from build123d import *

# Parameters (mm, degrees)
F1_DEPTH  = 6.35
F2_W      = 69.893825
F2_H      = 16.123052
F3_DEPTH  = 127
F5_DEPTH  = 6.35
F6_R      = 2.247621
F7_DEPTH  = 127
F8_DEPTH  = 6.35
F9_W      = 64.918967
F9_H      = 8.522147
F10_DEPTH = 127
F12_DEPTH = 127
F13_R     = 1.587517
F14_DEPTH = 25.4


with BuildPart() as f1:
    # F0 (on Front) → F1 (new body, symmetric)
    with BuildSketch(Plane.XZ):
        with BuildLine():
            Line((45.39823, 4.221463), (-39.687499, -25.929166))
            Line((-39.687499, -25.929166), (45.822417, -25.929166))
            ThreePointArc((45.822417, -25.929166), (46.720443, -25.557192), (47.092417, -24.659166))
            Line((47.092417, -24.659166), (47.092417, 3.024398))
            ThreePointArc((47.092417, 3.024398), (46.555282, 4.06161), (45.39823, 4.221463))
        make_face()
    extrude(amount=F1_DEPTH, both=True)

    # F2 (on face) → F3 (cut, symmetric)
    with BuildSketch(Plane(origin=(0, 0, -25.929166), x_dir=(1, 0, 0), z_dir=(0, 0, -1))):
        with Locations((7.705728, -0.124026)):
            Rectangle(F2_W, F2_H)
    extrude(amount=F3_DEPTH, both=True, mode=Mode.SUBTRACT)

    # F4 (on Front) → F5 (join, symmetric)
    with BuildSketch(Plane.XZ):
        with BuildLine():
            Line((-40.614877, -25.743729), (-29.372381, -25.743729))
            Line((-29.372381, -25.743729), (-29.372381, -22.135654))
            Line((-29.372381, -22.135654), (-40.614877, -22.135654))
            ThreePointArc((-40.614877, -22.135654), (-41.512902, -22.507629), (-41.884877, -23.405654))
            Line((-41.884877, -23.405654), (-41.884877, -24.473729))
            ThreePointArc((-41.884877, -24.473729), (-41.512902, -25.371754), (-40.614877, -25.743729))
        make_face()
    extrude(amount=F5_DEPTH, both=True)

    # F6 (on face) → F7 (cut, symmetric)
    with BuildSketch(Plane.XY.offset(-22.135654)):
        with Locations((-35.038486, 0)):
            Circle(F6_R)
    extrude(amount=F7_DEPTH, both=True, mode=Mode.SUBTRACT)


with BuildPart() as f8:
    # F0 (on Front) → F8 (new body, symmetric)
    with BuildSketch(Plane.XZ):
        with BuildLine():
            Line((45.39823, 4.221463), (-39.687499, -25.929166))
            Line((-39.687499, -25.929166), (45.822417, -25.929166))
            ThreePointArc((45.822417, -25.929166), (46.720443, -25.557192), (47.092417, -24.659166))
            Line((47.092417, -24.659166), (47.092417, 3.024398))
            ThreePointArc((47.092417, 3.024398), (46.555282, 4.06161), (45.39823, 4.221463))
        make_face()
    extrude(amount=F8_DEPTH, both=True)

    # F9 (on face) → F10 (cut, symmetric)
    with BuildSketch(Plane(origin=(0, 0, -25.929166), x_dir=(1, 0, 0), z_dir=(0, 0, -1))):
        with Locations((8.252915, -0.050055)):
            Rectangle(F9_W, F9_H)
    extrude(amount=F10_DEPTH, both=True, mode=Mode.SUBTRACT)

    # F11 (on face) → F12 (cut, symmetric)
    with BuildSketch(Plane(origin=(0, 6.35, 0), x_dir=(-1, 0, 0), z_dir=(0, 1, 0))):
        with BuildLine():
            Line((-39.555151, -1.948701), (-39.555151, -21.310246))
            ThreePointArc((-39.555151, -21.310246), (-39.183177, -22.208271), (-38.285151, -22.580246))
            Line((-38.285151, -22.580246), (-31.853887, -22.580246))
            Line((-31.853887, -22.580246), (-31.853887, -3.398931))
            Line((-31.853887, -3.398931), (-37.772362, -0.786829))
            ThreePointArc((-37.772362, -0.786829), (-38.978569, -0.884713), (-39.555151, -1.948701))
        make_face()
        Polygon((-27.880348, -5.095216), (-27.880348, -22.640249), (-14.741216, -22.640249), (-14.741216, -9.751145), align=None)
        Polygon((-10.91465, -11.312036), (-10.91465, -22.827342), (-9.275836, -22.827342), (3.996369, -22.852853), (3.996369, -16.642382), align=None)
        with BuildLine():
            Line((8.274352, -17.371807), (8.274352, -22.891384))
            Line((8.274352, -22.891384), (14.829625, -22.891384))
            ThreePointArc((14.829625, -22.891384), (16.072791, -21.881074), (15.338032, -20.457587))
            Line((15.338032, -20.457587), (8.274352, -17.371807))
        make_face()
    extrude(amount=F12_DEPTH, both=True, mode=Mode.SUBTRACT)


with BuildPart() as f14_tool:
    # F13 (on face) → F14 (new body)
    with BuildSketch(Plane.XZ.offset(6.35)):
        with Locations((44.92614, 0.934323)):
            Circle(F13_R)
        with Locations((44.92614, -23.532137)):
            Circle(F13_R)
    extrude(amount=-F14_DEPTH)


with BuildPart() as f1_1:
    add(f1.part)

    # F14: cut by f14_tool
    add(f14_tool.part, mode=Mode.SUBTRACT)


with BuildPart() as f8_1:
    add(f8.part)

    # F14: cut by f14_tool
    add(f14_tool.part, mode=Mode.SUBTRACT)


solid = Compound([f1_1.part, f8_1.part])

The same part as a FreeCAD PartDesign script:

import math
import FreeCAD as App
import Part
import Sketcher
from FreeCAD import Vector
Q = App.Units.Quantity


def add_polygon(sketch, points):
    """Adds a closed chain of lines whose ends are joined by coincident constraints."""
    first, n = sketch.GeometryCount, len(points)
    for a, b in zip(points, points[1:] + points[:1]):
        sketch.addGeometry(Part.LineSegment(App.Vector(*a, 0), App.Vector(*b, 0)), False)
    for i in range(n):
        sketch.addConstraint(Sketcher.Constraint("Coincident", first + i, 2, first + (i + 1) % n, 1))

doc = App.newDocument("Part")
body = doc.addObject("PartDesign::Body", "Body")
body.AllowCompound = True

# Sketch on XZ plane
sketch1 = body.newObject("Sketcher::SketchObject", "Sketch")
sketch1.AttachmentSupport = (doc.getObject("XZ_Plane"), [""])
sketch1.MapMode = "FlatFace"
sketch1.addGeometry([
    Part.LineSegment(Vector(45.4, 4.2, 0), Vector(-39.7, -25.9, 0)),  # 0
    Part.LineSegment(Vector(-39.7, -25.9, 0), Vector(45.8, -25.9, 0)),  # 1
    Part.ArcOfCircle(Part.Circle(Vector(45.8, -24.7, 0), Vector(0, 0, 1), 1.3), math.radians(-90), math.radians(0)),  # 2
    Part.LineSegment(Vector(47.1, -24.7, 0), Vector(47.1, 3, 0)),  # 3
    Part.ArcOfCircle(Part.Circle(Vector(45.8, 3, 0), Vector(0, 0, 1), 1.3), math.radians(0), math.radians(110)),  # 4
], False)
sketch1.addConstraint([
    Sketcher.Constraint("Coincident", 0, 2, 1, 1),
    Sketcher.Constraint("Tangent", 1, 2, 2, 1),
    Sketcher.Constraint("Tangent", 2, 2, 3, 1),
    Sketcher.Constraint("Tangent", 3, 2, 4, 1),
    Sketcher.Constraint("Tangent", 4, 2, 0, 1),
    Sketcher.Constraint("Horizontal", 1),
    Sketcher.Constraint("Vertical", 3),
    Sketcher.Constraint("Equal", 2, 4),
    Sketcher.Constraint("Radius", 2, Q("0.0499999 in")),
    Sketcher.Constraint("DistanceX", 0, 2, -1, 1, Q("1.5625 in")),
    Sketcher.Constraint("DistanceY", -1, 1, 4, 3, 3.024398),
    Sketcher.Constraint("DistanceX", 1, 1, 1, 2, 85.509916),
    Sketcher.Constraint("DistanceY", 3, 1, 3, 2, 27.683564),
])
pad1 = body.newObject("PartDesign::Pad", "Pad")
pad1.Profile = sketch1
pad1.Length = Q("0.5 in")
pad1.Midplane = True

# Sketch on XY plane
sketch2 = body.newObject("Sketcher::SketchObject", "Sketch001")
sketch2.AttachmentSupport = (doc.getObject("XY_Plane"), [""])
sketch2.MapMode = "FlatFace"
sketch2.AttachmentOffset = App.Placement(Vector(0, 0, -25.929166), App.Rotation())
add_polygon(sketch2, [(-27, -8), (-27, 8), (43, 8), (43, -8)])  # lines 0-3
sketch2.addConstraint([
    Sketcher.Constraint("Vertical", 0),
    Sketcher.Constraint("Horizontal", 1),
    Sketcher.Constraint("Vertical", 2),
    Sketcher.Constraint("Horizontal", 3),
    Sketcher.Constraint("DistanceY", 2, 2, -1, 1, Q("0.3125 in")),
    Sketcher.Constraint("DistanceX", 1, 1, 1, 2, 69.893825),
    Sketcher.Constraint("DistanceY", 0, 1, 0, 2, 16.123052),
    Sketcher.Constraint("DistanceX", -1, 1, 1, 2, 42.65264),
])
pocket1 = body.newObject("PartDesign::Pocket", "Pocket")
pocket1.Profile = sketch2
pocket1.Length = Q("10 in")
pocket1.Midplane = True

# Sketch on XZ plane
sketch3 = body.newObject("Sketcher::SketchObject", "Sketch002")
sketch3.AttachmentSupport = (doc.getObject("XZ_Plane"), [""])
sketch3.MapMode = "FlatFace"
sketch3.addGeometry([
    Part.LineSegment(Vector(-40.6, -25.7, 0), Vector(-29.4, -25.7, 0)),  # 0
    Part.LineSegment(Vector(-29.4, -25.7, 0), Vector(-29.4, -22.1, 0)),  # 1
    Part.LineSegment(Vector(-29.4, -22.1, 0), Vector(-40.6, -22.1, 0)),  # 2
    Part.ArcOfCircle(Part.Circle(Vector(-40.6, -23.4, 0), Vector(0, 0, 1), 1.3), math.radians(90), math.radians(180)),  # 3
    Part.LineSegment(Vector(-41.9, -23.4, 0), Vector(-41.9, -24.5, 0)),  # 4
    Part.ArcOfCircle(Part.Circle(Vector(-40.6, -24.5, 0), Vector(0, 0, 1), 1.3), math.radians(-180), math.radians(-90)),  # 5
], False)
sketch3.addConstraint([
    Sketcher.Constraint("Coincident", 0, 2, 1, 1),
    Sketcher.Constraint("Coincident", 1, 2, 2, 1),
    Sketcher.Constraint("Tangent", 2, 2, 3, 1),
    Sketcher.Constraint("Tangent", 3, 2, 4, 1),
    Sketcher.Constraint("Tangent", 4, 2, 5, 1),
    Sketcher.Constraint("Tangent", 5, 2, 0, 1),
    Sketcher.Constraint("Horizontal", 0),
    Sketcher.Constraint("Vertical", 1),
    Sketcher.Constraint("Horizontal", 2),
    Sketcher.Constraint("Vertical", 4),
    Sketcher.Constraint("Equal", 3, 5),
    Sketcher.Constraint("Radius", 3, Q("0.0500001 in")),
    Sketcher.Constraint("DistanceX", 0, 1, 0, 2, 11.242496),
    Sketcher.Constraint("DistanceY", 1, 1, 1, 2, 3.608075),
    Sketcher.Constraint("DistanceX", 0, 2, -1, 1, 29.372381),
    Sketcher.Constraint("DistanceY", 0, 2, -1, 1, 25.743729),
])
pad2 = body.newObject("PartDesign::Pad", "Pad001")
pad2.Profile = sketch3
pad2.Length = Q("0.5 in")
pad2.Midplane = True

# Sketch on XY plane
sketch4 = body.newObject("Sketcher::SketchObject", "Sketch003")
sketch4.AttachmentSupport = (doc.getObject("XY_Plane"), [""])
sketch4.MapMode = "FlatFace"
sketch4.AttachmentOffset = App.Placement(Vector(0, 0, -22.135654), App.Rotation())
sketch4.addGeometry(Part.Circle(Vector(-35, 0, 0), Vector(0, 0, 1), 2.2), False)
sketch4.addConstraint([
    Sketcher.Constraint("PointOnObject", 0, 3, -1),
    Sketcher.Constraint("Diameter", 0, 4.495242),
    Sketcher.Constraint("DistanceX", 0, 3, -1, 1, 35.038486),
])
pocket2 = body.newObject("PartDesign::Pocket", "Pocket001")
pocket2.Profile = sketch4
pocket2.Length = Q("10 in")
pocket2.Midplane = True
body2 = doc.addObject("PartDesign::Body", "Body001")

# Sketch on XZ plane
sketch5 = body2.newObject("Sketcher::SketchObject", "Sketch004")
sketch5.AttachmentSupport = (doc.getObject("XZ_Plane001"), [""])
sketch5.MapMode = "FlatFace"
sketch5.addGeometry([
    Part.LineSegment(Vector(45.4, 4.2, 0), Vector(-39.7, -25.9, 0)),  # 0
    Part.LineSegment(Vector(-39.7, -25.9, 0), Vector(45.8, -25.9, 0)),  # 1
    Part.ArcOfCircle(Part.Circle(Vector(45.8, -24.7, 0), Vector(0, 0, 1), 1.3), math.radians(-90), math.radians(0)),  # 2
    Part.LineSegment(Vector(47.1, -24.7, 0), Vector(47.1, 3, 0)),  # 3
    Part.ArcOfCircle(Part.Circle(Vector(45.8, 3, 0), Vector(0, 0, 1), 1.3), math.radians(0), math.radians(110)),  # 4
], False)
sketch5.addConstraint([
    Sketcher.Constraint("Coincident", 0, 2, 1, 1),
    Sketcher.Constraint("Tangent", 1, 2, 2, 1),
    Sketcher.Constraint("Tangent", 2, 2, 3, 1),
    Sketcher.Constraint("Tangent", 3, 2, 4, 1),
    Sketcher.Constraint("Tangent", 4, 2, 0, 1),
    Sketcher.Constraint("Horizontal", 1),
    Sketcher.Constraint("Vertical", 3),
    Sketcher.Constraint("Equal", 2, 4),
    Sketcher.Constraint("Radius", 2, Q("0.0499999 in")),
    Sketcher.Constraint("DistanceX", 0, 2, -1, 1, Q("1.5625 in")),
    Sketcher.Constraint("DistanceY", -1, 1, 4, 3, 3.024398),
    Sketcher.Constraint("DistanceX", 1, 1, 1, 2, 85.509916),
    Sketcher.Constraint("DistanceY", 3, 1, 3, 2, 27.683564),
])
pad3 = body2.newObject("PartDesign::Pad", "Pad002")
pad3.Profile = sketch5
pad3.Length = Q("0.5 in")
pad3.Midplane = True

# Sketch on XY plane
sketch6 = body2.newObject("Sketcher::SketchObject", "Sketch005")
sketch6.AttachmentSupport = (doc.getObject("XY_Plane001"), [""])
sketch6.MapMode = "FlatFace"
sketch6.AttachmentOffset = App.Placement(Vector(0, 0, -25.929166), App.Rotation())
add_polygon(sketch6, [(-24, -4), (-24, 4), (41, 4), (41, -4)])  # lines 0-3
sketch6.addConstraint([
    Sketcher.Constraint("Vertical", 0),
    Sketcher.Constraint("Horizontal", 1),
    Sketcher.Constraint("Vertical", 2),
    Sketcher.Constraint("Horizontal", 3),
    Sketcher.Constraint("DistanceX", -1, 1, 1, 2, 40.712398),
    Sketcher.Constraint("DistanceX", 1, 1, 1, 2, 64.918967),
    Sketcher.Constraint("DistanceY", 0, 1, 0, 2, 8.522147),
    Sketcher.Constraint("DistanceY", -1, 1, 0, 2, 4.311128),
])
pocket3 = body2.newObject("PartDesign::Pocket", "Pocket002")
pocket3.Profile = sketch6
pocket3.Length = Q("10 in")
pocket3.Midplane = True

# Sketch on XZ plane
sketch7 = body2.newObject("Sketcher::SketchObject", "Sketch006")
sketch7.AttachmentSupport = (doc.getObject("XZ_Plane001"), [""])
sketch7.MapMode = "FlatFace"
sketch7.AttachmentOffset = App.Placement(Vector(0, 0, -0.25 * 25.4), App.Rotation())
sketch7.addGeometry(Part.LineSegment(Vector(39.6, -1.9, 0), Vector(39.6, -21.3, 0)), False)  # 0
sketch7.addGeometry(Part.ArcOfCircle(Part.Circle(Vector(38.3, -21.3, 0), Vector(0, 0, 1), 1.3), math.radians(-90), math.radians(0)), False)  # 1
sketch7.addGeometry(Part.LineSegment(Vector(38.3, -22.6, 0), Vector(31.9, -22.6, 0)), False)  # 2
sketch7.addGeometry(Part.LineSegment(Vector(31.9, -22.6, 0), Vector(31.9, -3.4, 0)), False)  # 3
sketch7.addGeometry(Part.LineSegment(Vector(31.9, -3.4, 0), Vector(37.8, -0.8, 0)), False)  # 4
sketch7.addGeometry(Part.ArcOfCircle(Part.Circle(Vector(38.3, -1.9, 0), Vector(0, 0, 1), 1.3), math.radians(0), math.radians(114)), False)  # 5
add_polygon(sketch7, [(27.9, -5.1), (27.9, -22.6), (14.7, -22.6), (14.7, -9.8)])  # lines 6-9
add_polygon(sketch7, [(10.9, -11.3), (10.9, -22.8), (9.3, -22.8), (-4, -22.9), (-4, -16.6)])  # lines 10-14
sketch7.addGeometry(Part.LineSegment(Vector(-8.3, -17.4, 0), Vector(-8.3, -22.9, 0)), False)  # 15
sketch7.addGeometry(Part.LineSegment(Vector(-8.3, -22.9, 0), Vector(-14.8, -22.9, 0)), False)  # 16
sketch7.addGeometry(Part.ArcOfCircle(Part.Circle(Vector(-14.8, -21.6, 0), Vector(0, 0, 1), 1.3), math.radians(114), math.radians(270)), False)  # 17
sketch7.addGeometry(Part.LineSegment(Vector(-15.3, -20.5, 0), Vector(-8.3, -17.4, 0)), False)  # 18
sketch7.addConstraint([
    Sketcher.Constraint("Tangent", 0, 2, 1, 2),
    Sketcher.Constraint("Tangent", 1, 1, 2, 1),
    Sketcher.Constraint("Coincident", 2, 2, 3, 1),
    Sketcher.Constraint("Coincident", 3, 2, 4, 1),
    Sketcher.Constraint("Tangent", 4, 2, 5, 2),
    Sketcher.Constraint("Tangent", 5, 1, 0, 1),
    Sketcher.Constraint("Coincident", 15, 2, 16, 1),
    Sketcher.Constraint("Tangent", 16, 2, 17, 2),
    Sketcher.Constraint("Tangent", 17, 1, 18, 1),
    Sketcher.Constraint("Coincident", 18, 2, 15, 1),
    Sketcher.Constraint("Vertical", 0),
    Sketcher.Constraint("Horizontal", 2),
    Sketcher.Constraint("Vertical", 3),
    Sketcher.Constraint("Vertical", 6),
    Sketcher.Constraint("Horizontal", 7),
    Sketcher.Constraint("Vertical", 8),
    Sketcher.Constraint("Vertical", 10),
    Sketcher.Constraint("Horizontal", 11),
    Sketcher.Constraint("Vertical", 13),
    Sketcher.Constraint("Vertical", 15),
    Sketcher.Constraint("Horizontal", 16),
    Sketcher.Constraint("Equal", 1, 5),
    Sketcher.Constraint("Equal", 5, 17),
    Sketcher.Constraint("Radius", 1, Q("0.05 in")),
    Sketcher.Constraint("DistanceX", 12, 2, 7, 2, Q("0.7377002 in")),
    Sketcher.Constraint("DistanceY", 13, 1, 13, 2, 6.210471),
    Sketcher.Constraint("DistanceY", 5, 3, -1, 1, 1.948702),
    Sketcher.Constraint("DistanceY", 2, 2, 8, 2, 12.829101),
    Sketcher.Constraint("DistanceX", 10, 2, 6, 2, 16.965698),
    Sketcher.Constraint("DistanceY", 17, 3, 13, 2, 4.979002),
    Sketcher.Constraint("Distance", 12, 13.27223),
    Sketcher.Constraint("Distance", 14, 15.835122),
    Sketcher.Constraint("DistanceX", 2, 2, 2, 1, 6.431264),
    Sketcher.Constraint("DistanceX", 7, 2, 7, 1, 13.139132),
    Sketcher.Constraint("DistanceX", 16, 2, 16, 1, 6.555273),
    Sketcher.Constraint("DistanceY", 0, 2, 0, 1, 19.361545),
    Sketcher.Constraint("DistanceY", 3, 1, 3, 2, 19.181315),
    Sketcher.Constraint("DistanceY", 6, 2, 6, 1, 17.545033),
    Sketcher.Constraint("DistanceY", 8, 1, 8, 2, 12.889104),
    Sketcher.Constraint("DistanceY", 10, 2, 10, 1, 11.515306),
    Sketcher.Constraint("DistanceY", 15, 2, 15, 1, 5.519577),
    Sketcher.Constraint("DistanceX", -1, 1, 1, 3, 38.285151),
    Sketcher.Constraint("DistanceX", -1, 1, 6, 2, 27.880348),
    Sketcher.Constraint("DistanceX", 17, 1, -1, 1, 15.338032),
    Sketcher.Constraint("DistanceY", 17, 3, 1, 3, 0.311138),
])
pocket4 = body2.newObject("PartDesign::Pocket", "Pocket003")
pocket4.Profile = sketch7
pocket4.Length = Q("10 in")
pocket4.Midplane = True
body3 = doc.addObject("PartDesign::Body", "Body002")
body3.AllowCompound = True

# Sketch on XZ plane
sketch8 = body3.newObject("Sketcher::SketchObject", "Sketch007")
sketch8.AttachmentSupport = (doc.getObject("XZ_Plane002"), [""])
sketch8.MapMode = "FlatFace"
sketch8.AttachmentOffset = App.Placement(Vector(0, 0, 0.25 * 25.4), App.Rotation())
sketch8.addGeometry([
    Part.Circle(Vector(44.9, 0.9, 0), Vector(0, 0, 1), 1.6),
    Part.Circle(Vector(44.9, -23.5, 0), Vector(0, 0, 1), 1.6),
], False)
sketch8.addConstraint([
    Sketcher.Constraint("Equal", 0, 1),
    Sketcher.Constraint("Vertical", 0, 3, 1, 3),
    Sketcher.Constraint("Diameter", 0, 3.175034),
    Sketcher.Constraint("DistanceX", -1, 1, 0, 3, 44.92614),
    Sketcher.Constraint("DistanceY", 1, 3, 0, 3, 24.46646),
    Sketcher.Constraint("DistanceY", -1, 1, 0, 3, 0.934323),
])
pad4 = body3.newObject("PartDesign::Pad", "Pad003")
pad4.Profile = sketch8
pad4.Length = Q("1 in")
pad4.Reversed = True
body.AllowCompound = True
doc.recompute()

body4 = doc.addObject("PartDesign::Body", "Body003")
body4.BaseFeature = body3
boolean = body.newObject("PartDesign::Boolean", "Boolean")
boolean.Type = "Cut"
boolean.addObjects([body4])
doc.recompute()

boolean2 = body2.newObject("PartDesign::Boolean", "Boolean001")
boolean2.Type = "Cut"
boolean2.addObjects([body3])

doc.recompute()
